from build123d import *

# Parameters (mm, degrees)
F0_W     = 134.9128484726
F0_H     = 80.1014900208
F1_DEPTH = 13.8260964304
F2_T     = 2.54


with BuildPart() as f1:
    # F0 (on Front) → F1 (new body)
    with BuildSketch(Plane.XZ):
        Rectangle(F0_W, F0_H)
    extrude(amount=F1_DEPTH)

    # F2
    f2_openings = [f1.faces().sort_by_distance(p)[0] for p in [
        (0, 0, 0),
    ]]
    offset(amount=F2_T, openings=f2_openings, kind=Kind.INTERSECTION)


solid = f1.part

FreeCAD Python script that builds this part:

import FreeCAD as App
import Part
import Sketcher
from FreeCAD import Vector
Q = App.Units.Quantity


def faces_at(feature, points):
    """Names of the faces that lie closest to the given points."""
    faces = feature.Shape.Faces
    near = lambda p: min(range(len(faces)), key=lambda i: faces[i].distToShape(Part.Vertex(*p))[0])
    return sorted({f"Face{near(p) + 1}" for p in points})


def add_polygon(sketch, points):
    """Adds a closed chain of lines whose ends are joined by coincident constraints."""
    first, n = sketch.GeometryCount, len(points)
    for a, b in zip(points, points[1:] + points[:1]):
        sketch.addGeometry(Part.LineSegment(App.Vector(*a, 0), App.Vector(*b, 0)), False)
    for i in range(n):
        sketch.addConstraint(Sketcher.Constraint("Coincident", first + i, 2, first + (i + 1) % n, 1))

doc = App.newDocument("Part")
body = doc.addObject("PartDesign::Body", "Body")

# Sketch on XZ plane
sketch1 = doc.addObject("Sketcher::SketchObject", "Sketch")
body.addObject(sketch1)
sketch1.AttachmentSupport = (doc.XZ_Plane, [""])
sketch1.MapMode = "FlatFace"
add_polygon(sketch1, [(-67.456424, 40.050745), (-67.456424, -40.050745), (67.456424, -40.050745), (67.456424, 40.050745)])  # lines 0-3
sketch1.addConstraint(Sketcher.Constraint("Vertical", 0))
sketch1.addConstraint(Sketcher.Constraint("Horizontal", 1))
sketch1.addConstraint(Sketcher.Constraint("Vertical", 2))
sketch1.addConstraint(Sketcher.Constraint("Horizontal", 3))
sketch1.addConstraint(Sketcher.Constraint("Symmetric", 0, 2, 2, 2, -1, 1))
sketch1.addConstraint(Sketcher.Constraint("DistanceX", 1, 1, 1, 2, Q("134.912848 mm")))
sketch1.addConstraint(Sketcher.Constraint("DistanceY", 0, 2, 0, 1, Q("80.10149 mm")))
pad1 = doc.addObject("PartDesign::Pad", "Pad")
body.addObject(pad1)
pad1.Profile = sketch1
pad1.Length = 13.826096
doc.recompute()

thickness = doc.addObject("PartDesign::Thickness", "Thickness")
body.addObject(thickness)
thickness.Base = (pad1, faces_at(pad1, [(0, 0, 0)]))
thickness.Value = Q("0.1 in")
thickness.Reversed = False
thickness.Join = "Intersection"

doc.recompute()
